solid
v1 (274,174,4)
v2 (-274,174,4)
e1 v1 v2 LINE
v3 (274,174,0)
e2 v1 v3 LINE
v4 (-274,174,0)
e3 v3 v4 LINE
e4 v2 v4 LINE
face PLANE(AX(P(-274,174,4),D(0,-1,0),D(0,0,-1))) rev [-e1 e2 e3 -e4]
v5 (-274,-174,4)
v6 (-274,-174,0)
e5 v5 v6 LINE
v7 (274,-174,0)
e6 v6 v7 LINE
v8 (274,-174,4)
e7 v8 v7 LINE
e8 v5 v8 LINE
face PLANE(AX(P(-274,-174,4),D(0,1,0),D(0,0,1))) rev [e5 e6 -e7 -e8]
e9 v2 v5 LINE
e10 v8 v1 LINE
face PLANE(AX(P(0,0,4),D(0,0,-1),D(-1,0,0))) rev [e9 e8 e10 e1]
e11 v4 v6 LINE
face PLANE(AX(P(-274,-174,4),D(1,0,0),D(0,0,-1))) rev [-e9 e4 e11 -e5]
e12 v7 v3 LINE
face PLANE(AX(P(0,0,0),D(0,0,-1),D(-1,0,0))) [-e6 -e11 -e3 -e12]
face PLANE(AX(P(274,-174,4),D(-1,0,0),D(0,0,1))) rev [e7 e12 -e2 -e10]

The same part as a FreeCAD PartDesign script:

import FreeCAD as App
import Part
import Sketcher
Q = App.Units.Quantity

doc = App.newDocument("Part")
body = doc.addObject("PartDesign::Body", "Body")

# Sketch on XY plane
sketch1 = doc.addObject("Sketcher::SketchObject", "Sketch")
body.addObject(sketch1)
sketch1.AttachmentSupport = (doc.XY_Plane, [""])
sketch1.MapMode = "FlatFace"
sketch1.addGeometry([
    Part.LineSegment(App.Vector(-274, 174, 0), App.Vector(-274, -174, 0)),
    Part.LineSegment(App.Vector(-274, -174, 0), App.Vector(274, -174, 0)),
    Part.LineSegment(App.Vector(274, -174, 0), App.Vector(274, 174, 0)),
    Part.LineSegment(App.Vector(274, 174, 0), App.Vector(-274, 174, 0)),
], False)
sketch1.addConstraint([
    Sketcher.Constraint("Coincident", 0, 2, 1, 1),
    Sketcher.Constraint("Coincident", 1, 2, 2, 1),
    Sketcher.Constraint("Coincident", 2, 2, 3, 1),
    Sketcher.Constraint("Coincident", 3, 2, 0, 1),
    Sketcher.Constraint("Vertical", 0),
    Sketcher.Constraint("Horizontal", 1),
    Sketcher.Constraint("Vertical", 2),
    Sketcher.Constraint("Horizontal", 3),
    Sketcher.Constraint("Symmetric", 0, 2, 2, 2, -1, 1),
    Sketcher.Constraint("DistanceX", 1, 1, 1, 2, Q("548 mm")),
    Sketcher.Constraint("DistanceY", 0, 2, 0, 1, Q("348 mm")),
])
pad1 = doc.addObject("PartDesign::Pad", "Pad")
body.addObject(pad1)
pad1.Profile = sketch1
pad1.Length = 4

doc.recompute()
